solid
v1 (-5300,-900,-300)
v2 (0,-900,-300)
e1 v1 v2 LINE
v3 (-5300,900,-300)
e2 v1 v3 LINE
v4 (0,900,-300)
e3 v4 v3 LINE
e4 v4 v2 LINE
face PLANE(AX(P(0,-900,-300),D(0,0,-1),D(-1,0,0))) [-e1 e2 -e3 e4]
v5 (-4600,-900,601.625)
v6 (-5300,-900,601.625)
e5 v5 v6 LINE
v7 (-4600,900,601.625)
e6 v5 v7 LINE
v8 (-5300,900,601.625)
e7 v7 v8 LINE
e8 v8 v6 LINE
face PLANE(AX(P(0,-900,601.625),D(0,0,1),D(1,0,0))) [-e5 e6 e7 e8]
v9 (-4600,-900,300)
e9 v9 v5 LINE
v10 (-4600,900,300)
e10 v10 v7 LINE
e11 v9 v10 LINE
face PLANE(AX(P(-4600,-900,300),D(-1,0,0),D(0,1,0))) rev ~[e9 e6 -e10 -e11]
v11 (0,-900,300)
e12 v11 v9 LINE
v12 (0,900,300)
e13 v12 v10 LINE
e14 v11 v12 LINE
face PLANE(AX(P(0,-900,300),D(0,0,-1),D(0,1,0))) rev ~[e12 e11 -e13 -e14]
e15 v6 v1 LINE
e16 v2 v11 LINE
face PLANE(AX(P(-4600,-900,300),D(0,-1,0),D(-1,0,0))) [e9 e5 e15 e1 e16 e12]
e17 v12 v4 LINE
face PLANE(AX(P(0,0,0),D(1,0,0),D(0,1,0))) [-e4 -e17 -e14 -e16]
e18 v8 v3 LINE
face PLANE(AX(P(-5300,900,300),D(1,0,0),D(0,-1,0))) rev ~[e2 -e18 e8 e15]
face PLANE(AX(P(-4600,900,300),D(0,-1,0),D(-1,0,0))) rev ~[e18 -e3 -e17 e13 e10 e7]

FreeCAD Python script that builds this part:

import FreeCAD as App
import Part
import Sketcher
Q = App.Units.Quantity

doc = App.newDocument("Part")
body = doc.addObject("PartDesign::Body", "Body")

# Sketch on YZ plane
sketch1 = body.newObject("Sketcher::SketchObject", "Sketch")
sketch1.AttachmentSupport = (doc.getObject("YZ_Plane"), [""])
sketch1.MapMode = "FlatFace"
sketch1.addGeometry(Part.LineSegment(App.Vector(900, 300, 0), App.Vector(-900, 300, 0)), False)
sketch1.addGeometry(Part.LineSegment(App.Vector(-900, 300, 0), App.Vector(-900, -300, 0)), False)
sketch1.addGeometry(Part.LineSegment(App.Vector(-900, -300, 0), App.Vector(900, -300, 0)), False)
sketch1.addGeometry(Part.LineSegment(App.Vector(900, -300, 0), App.Vector(900, 300, 0)), False)
sketch1.addConstraint(Sketcher.Constraint("Coincident", 0, 2, 1, 1))
sketch1.addConstraint(Sketcher.Constraint("Coincident", 1, 2, 2, 1))
sketch1.addConstraint(Sketcher.Constraint("Coincident", 2, 2, 3, 1))
sketch1.addConstraint(Sketcher.Constraint("Coincident", 3, 2, 0, 1))
sketch1.addConstraint(Sketcher.Constraint("Horizontal", 0))
sketch1.addConstraint(Sketcher.Constraint("Vertical", 1))
sketch1.addConstraint(Sketcher.Constraint("Horizontal", 2))
sketch1.addConstraint(Sketcher.Constraint("Vertical", 3))
sketch1.addConstraint(Sketcher.Constraint("Symmetric", 0, 2, 2, 2, -1, 1))
sketch1.addConstraint(Sketcher.Constraint("DistanceX", 0, 2, 0, 1, Q("1800 mm")))
sketch1.addConstraint(Sketcher.Constraint("DistanceY", 1, 2, 1, 1, Q("600 mm")))
pad1 = body.newObject("PartDesign::Pad", "Pad")
pad1.Profile = sketch1
pad1.Length = 5300
pad1.Reversed = True

# Sketch on XY plane
sketch2 = body.newObject("Sketcher::SketchObject", "Sketch001")
sketch2.AttachmentSupport = (doc.getObject("XY_Plane"), [""])
sketch2.MapMode = "FlatFace"
sketch2.AttachmentOffset = App.Placement(App.Vector(0, 0, -300), App.Rotation())
sketch2.addGeometry(Part.LineSegment(App.Vector(-5300, 900, 0), App.Vector(-4600, 900, 0)), False)
sketch2.addGeometry(Part.LineSegment(App.Vector(-4600, 900, 0), App.Vector(-4600, -900, 0)), False)
sketch2.addGeometry(Part.LineSegment(App.Vector(-4600, -900, 0), App.Vector(-5300, -900, 0)), False)
sketch2.addGeometry(Part.LineSegment(App.Vector(-5300, -900, 0), App.Vector(-5300, 900, 0)), False)
sketch2.addConstraint(Sketcher.Constraint("Coincident", 0, 2, 1, 1))
sketch2.addConstraint(Sketcher.Constraint("Coincident", 1, 2, 2, 1))
sketch2.addConstraint(Sketcher.Constraint("Coincident", 2, 2, 3, 1))
sketch2.addConstraint(Sketcher.Constraint("Coincident", 3, 2, 0, 1))
sketch2.addConstraint(Sketcher.Constraint("Horizontal", 0))
sketch2.addConstraint(Sketcher.Constraint("Vertical", 1))
sketch2.addConstraint(Sketcher.Constraint("Horizontal", 2))
sketch2.addConstraint(Sketcher.Constraint("Vertical", 3))
sketch2.addConstraint(Sketcher.Constraint("DistanceX", 0, 1, 0, 2, Q("700 mm")))
sketch2.addConstraint(Sketcher.Constraint("DistanceY", 1, 2, 1, 1, Q("1800 mm")))
sketch2.addConstraint(Sketcher.Constraint("DistanceX", 0, 2, -1, 1, Q("4600 mm")))
sketch2.addConstraint(Sketcher.Constraint("DistanceY", -1, 1, 0, 2, Q("900 mm")))
pad2 = body.newObject("PartDesign::Pad", "Pad001")
pad2.Profile = sketch2
pad2.Length = 301.625
pad2.Reversed = True

# Sketch on XY plane
sketch3 = body.newObject("Sketcher::SketchObject", "Sketch002")
sketch3.AttachmentSupport = (doc.getObject("XY_Plane"), [""])
sketch3.MapMode = "FlatFace"
sketch3.AttachmentOffset = App.Placement(App.Vector(0, 0, -601.625), App.Rotation())
sketch3.addGeometry(Part.LineSegment(App.Vector(-5300, -900, 0), App.Vector(-5300, 900, 0)), False)
sketch3.addGeometry(Part.LineSegment(App.Vector(-5300, 900, 0), App.Vector(-4600, 900, 0)), False)
sketch3.addGeometry(Part.LineSegment(App.Vector(-4600, 900, 0), App.Vector(-4600, -900, 0)), False)
sketch3.addGeometry(Part.LineSegment(App.Vector(-4600, -900, 0), App.Vector(-5300, -900, 0)), False)
sketch3.addConstraint(Sketcher.Constraint("Coincident", 0, 2, 1, 1))
sketch3.addConstraint(Sketcher.Constraint("Coincident", 1, 2, 2, 1))
sketch3.addConstraint(Sketcher.Constraint("Coincident", 2, 2, 3, 1))
sketch3.addConstraint(Sketcher.Constraint("Coincident", 3, 2, 0, 1))
sketch3.addConstraint(Sketcher.Constraint("Vertical", 0))
sketch3.addConstraint(Sketcher.Constraint("Horizontal", 1))
sketch3.addConstraint(Sketcher.Constraint("Vertical", 2))
sketch3.addConstraint(Sketcher.Constraint("Horizontal", 3))
sketch3.addConstraint(Sketcher.Constraint("DistanceX", 1, 1, 1, 2, Q("700 mm")))
sketch3.addConstraint(Sketcher.Constraint("DistanceY", 0, 1, 0, 2, Q("1800 mm")))
sketch3.addConstraint(Sketcher.Constraint("DistanceX", 0, 2, -1, 1, Q("5300 mm")))
sketch3.addConstraint(Sketcher.Constraint("DistanceY", -1, 1, 0, 2, Q("900 mm")))
pocket1 = body.newObject("PartDesign::Pocket", "Pocket")
pocket1.Profile = sketch3
pocket1.Length = 301.625
pocket1.Reversed = True

# Sketch on XY plane
sketch4 = body.newObject("Sketcher::SketchObject", "Sketch003")
sketch4.AttachmentSupport = (doc.getObject("XY_Plane"), [""])
sketch4.MapMode = "FlatFace"
sketch4.AttachmentOffset = App.Placement(App.Vector(0, 0, 300), App.Rotation())
sketch4.addGeometry(Part.LineSegment(App.Vector(-5300, -900, 0), App.Vector(-4600, -900, 0)), False)
sketch4.addGeometry(Part.LineSegment(App.Vector(-4600, -900, 0), App.Vector(-4600, 900, 0)), False)
sketch4.addGeometry(Part.LineSegment(App.Vector(-4600, 900, 0), App.Vector(-5300, 900, 0)), False)
sketch4.addGeometry(Part.LineSegment(App.Vector(-5300, 900, 0), App.Vector(-5300, -900, 0)), False)
sketch4.addConstraint(Sketcher.Constraint("Coincident", 0, 2, 1, 1))
sketch4.addConstraint(Sketcher.Constraint("Coincident", 1, 2, 2, 1))
sketch4.addConstraint(Sketcher.Constraint("Coincident", 2, 2, 3, 1))
sketch4.addConstraint(Sketcher.Constraint("Coincident", 3, 2, 0, 1))
sketch4.addConstraint(Sketcher.Constraint("Horizontal", 0))
sketch4.addConstraint(Sketcher.Constraint("Vertical", 1))
sketch4.addConstraint(Sketcher.Constraint("Horizontal", 2))
sketch4.addConstraint(Sketcher.Constraint("Vertical", 3))
sketch4.addConstraint(Sketcher.Constraint("DistanceX", 0, 1, 0, 2, Q("700 mm")))
sketch4.addConstraint(Sketcher.Constraint("DistanceY", 1, 1, 1, 2, Q("1800 mm")))
sketch4.addConstraint(Sketcher.Constraint("DistanceX", 0, 2, -1, 1, Q("4600 mm")))
sketch4.addConstraint(Sketcher.Constraint("DistanceY", 0, 2, -1, 1, Q("900 mm")))
pad3 = body.newObject("PartDesign::Pad", "Pad002")
pad3.Profile = sketch4
pad3.Length = 301.625

doc.recompute()
